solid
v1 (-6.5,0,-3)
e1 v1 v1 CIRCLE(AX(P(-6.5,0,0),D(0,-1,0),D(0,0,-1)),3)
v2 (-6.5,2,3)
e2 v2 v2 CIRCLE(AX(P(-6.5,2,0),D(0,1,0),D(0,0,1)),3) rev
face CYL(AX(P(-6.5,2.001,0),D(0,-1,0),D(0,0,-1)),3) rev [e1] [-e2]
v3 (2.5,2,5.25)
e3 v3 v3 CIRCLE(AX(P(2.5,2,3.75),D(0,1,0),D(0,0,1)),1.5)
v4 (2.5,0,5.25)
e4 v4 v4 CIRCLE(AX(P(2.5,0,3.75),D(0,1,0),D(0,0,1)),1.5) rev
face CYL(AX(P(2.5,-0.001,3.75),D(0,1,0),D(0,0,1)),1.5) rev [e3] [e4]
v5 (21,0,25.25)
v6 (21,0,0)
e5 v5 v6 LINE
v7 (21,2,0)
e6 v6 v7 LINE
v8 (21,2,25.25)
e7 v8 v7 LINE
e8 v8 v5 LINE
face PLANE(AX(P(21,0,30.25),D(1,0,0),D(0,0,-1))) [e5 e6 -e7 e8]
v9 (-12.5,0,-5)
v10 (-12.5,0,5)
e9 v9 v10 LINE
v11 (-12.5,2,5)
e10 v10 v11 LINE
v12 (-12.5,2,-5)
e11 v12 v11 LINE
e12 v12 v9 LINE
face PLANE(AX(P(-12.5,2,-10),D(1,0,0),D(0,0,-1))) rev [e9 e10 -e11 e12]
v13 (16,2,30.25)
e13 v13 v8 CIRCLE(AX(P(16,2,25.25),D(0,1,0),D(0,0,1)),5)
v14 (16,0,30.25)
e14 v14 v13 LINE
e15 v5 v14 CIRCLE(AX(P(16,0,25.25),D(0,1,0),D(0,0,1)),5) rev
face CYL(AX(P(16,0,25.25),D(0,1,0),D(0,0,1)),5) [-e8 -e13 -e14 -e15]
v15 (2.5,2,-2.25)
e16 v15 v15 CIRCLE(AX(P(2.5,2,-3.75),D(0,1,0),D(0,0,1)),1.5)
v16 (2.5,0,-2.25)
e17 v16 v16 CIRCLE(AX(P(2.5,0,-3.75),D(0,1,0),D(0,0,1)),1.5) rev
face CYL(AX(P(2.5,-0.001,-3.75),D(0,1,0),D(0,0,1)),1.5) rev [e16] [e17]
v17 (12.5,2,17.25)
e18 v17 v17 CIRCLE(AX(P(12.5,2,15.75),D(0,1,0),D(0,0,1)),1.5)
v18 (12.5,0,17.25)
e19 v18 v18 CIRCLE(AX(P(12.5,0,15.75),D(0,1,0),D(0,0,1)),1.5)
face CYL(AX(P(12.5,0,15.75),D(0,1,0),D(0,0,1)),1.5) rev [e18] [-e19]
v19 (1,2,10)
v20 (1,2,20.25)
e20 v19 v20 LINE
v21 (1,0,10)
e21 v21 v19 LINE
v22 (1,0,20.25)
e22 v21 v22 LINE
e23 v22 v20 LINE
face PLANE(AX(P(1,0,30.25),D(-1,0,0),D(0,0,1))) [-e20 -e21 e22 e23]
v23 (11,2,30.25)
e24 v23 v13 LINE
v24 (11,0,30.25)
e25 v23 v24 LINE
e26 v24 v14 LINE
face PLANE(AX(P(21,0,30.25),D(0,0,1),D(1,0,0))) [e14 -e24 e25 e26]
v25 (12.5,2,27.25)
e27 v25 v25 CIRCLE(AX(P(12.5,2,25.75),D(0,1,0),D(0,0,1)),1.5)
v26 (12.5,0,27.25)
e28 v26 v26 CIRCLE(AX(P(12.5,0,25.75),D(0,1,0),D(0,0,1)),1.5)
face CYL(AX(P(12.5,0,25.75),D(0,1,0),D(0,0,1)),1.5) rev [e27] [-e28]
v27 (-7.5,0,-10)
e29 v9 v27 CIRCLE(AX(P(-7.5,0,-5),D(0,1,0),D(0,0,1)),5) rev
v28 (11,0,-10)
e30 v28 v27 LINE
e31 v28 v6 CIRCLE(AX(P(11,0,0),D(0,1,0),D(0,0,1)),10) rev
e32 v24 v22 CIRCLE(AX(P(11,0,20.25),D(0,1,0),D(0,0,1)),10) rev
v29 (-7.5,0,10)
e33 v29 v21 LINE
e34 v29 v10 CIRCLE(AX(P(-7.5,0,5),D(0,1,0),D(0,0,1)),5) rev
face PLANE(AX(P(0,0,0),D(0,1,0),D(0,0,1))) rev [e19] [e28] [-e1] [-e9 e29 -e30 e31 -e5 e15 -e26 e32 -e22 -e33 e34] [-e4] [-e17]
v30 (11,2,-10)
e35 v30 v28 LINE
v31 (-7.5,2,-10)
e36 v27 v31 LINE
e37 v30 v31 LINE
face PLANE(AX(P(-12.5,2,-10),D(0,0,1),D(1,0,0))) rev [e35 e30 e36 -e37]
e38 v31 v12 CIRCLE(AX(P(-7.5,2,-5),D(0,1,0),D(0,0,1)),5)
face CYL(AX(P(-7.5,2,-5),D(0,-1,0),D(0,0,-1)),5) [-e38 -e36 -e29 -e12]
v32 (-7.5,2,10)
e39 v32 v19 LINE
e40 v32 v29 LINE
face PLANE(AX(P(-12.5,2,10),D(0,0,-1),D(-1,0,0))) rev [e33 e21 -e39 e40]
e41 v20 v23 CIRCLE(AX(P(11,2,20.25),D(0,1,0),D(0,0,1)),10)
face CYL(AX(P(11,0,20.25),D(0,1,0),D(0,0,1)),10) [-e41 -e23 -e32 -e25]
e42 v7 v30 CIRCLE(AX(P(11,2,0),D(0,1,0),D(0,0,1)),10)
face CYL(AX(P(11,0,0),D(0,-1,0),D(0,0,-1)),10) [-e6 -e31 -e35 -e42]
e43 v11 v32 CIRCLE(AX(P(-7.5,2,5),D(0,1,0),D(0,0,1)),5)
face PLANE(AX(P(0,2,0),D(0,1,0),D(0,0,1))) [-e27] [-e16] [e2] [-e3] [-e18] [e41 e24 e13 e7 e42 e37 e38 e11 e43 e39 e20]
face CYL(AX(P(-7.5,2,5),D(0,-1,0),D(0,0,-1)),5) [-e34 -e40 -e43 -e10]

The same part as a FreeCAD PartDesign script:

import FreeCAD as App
import Part
import Sketcher
Q = App.Units.Quantity


def edges_at(feature, points):
    """Names of the edges that pass closest to the given points."""
    edges = feature.Shape.Edges
    near = lambda p: min(range(len(edges)), key=lambda i: edges[i].distToShape(Part.Vertex(*p))[0])
    return sorted({f"Edge{near(p) + 1}" for p in points})

doc = App.newDocument("Part")
body = doc.addObject("PartDesign::Body", "Body")

# Sketch on XZ plane
sketch1 = doc.addObject("Sketcher::SketchObject", "Sketch")
body.addObject(sketch1)
sketch1.AttachmentSupport = (doc.XZ_Plane, [""])
sketch1.MapMode = "FlatFace"
sketch1.addGeometry(Part.LineSegment(App.Vector(-12, -10, 0), App.Vector(-12, 10, 0)), False)
sketch1.addGeometry(Part.LineSegment(App.Vector(-12, 10, 0), App.Vector(12, 10, 0)), False)
sketch1.addGeometry(Part.LineSegment(App.Vector(12, 10, 0), App.Vector(12, -10, 0)), False)
sketch1.addGeometry(Part.LineSegment(App.Vector(12, -10, 0), App.Vector(-12, -10, 0)), False)
sketch1.addConstraint(Sketcher.Constraint("Coincident", 0, 2, 1, 1))
sketch1.addConstraint(Sketcher.Constraint("Coincident", 1, 2, 2, 1))
sketch1.addConstraint(Sketcher.Constraint("Coincident", 2, 2, 3, 1))
sketch1.addConstraint(Sketcher.Constraint("Coincident", 3, 2, 0, 1))
sketch1.addConstraint(Sketcher.Constraint("Vertical", 0))
sketch1.addConstraint(Sketcher.Constraint("Horizontal", 1))
sketch1.addConstraint(Sketcher.Constraint("Vertical", 2))
sketch1.addConstraint(Sketcher.Constraint("Horizontal", 3))
sketch1.addConstraint(Sketcher.Constraint("Symmetric", 0, 2, 2, 2, -1, 1))
sketch1.addConstraint(Sketcher.Constraint("DistanceX", 1, 1, 1, 2, Q("25 mm")))
sketch1.addConstraint(Sketcher.Constraint("DistanceY", 0, 1, 0, 2, Q("20 mm")))
pad1 = doc.addObject("PartDesign::Pad", "Pad")
body.addObject(pad1)
pad1.Profile = sketch1
pad1.Length = 2
pad1.Reversed = True

# Sketch on XZ plane
sketch2 = doc.addObject("Sketcher::SketchObject", "Sketch001")
body.addObject(sketch2)
sketch2.AttachmentSupport = (doc.XZ_Plane, [""])
sketch2.MapMode = "FlatFace"
sketch2.AttachmentOffset = App.Placement(App.Vector(0, 0, -2), App.Rotation())
sketch2.addGeometry(Part.Circle(App.Vector(-6.5, 0, 0), App.Vector(0, 0, 1), 1.5), False)
sketch2.addConstraint(Sketcher.Constraint("PointOnObject", 0, 3, -1))
sketch2.addConstraint(Sketcher.Constraint("Diameter", 0, Q("3 mm")))
sketch2.addConstraint(Sketcher.Constraint("DistanceX", 0, 3, -1, 1, Q("6.5 mm")))
pocket1 = doc.addObject("PartDesign::Pocket", "Pocket")
body.addObject(pocket1)
pocket1.Profile = sketch2
pocket1.Type = "UpToFirst"
pocket1.Reversed = True

# Sketch on XZ plane
sketch3 = doc.addObject("Sketcher::SketchObject", "Sketch002")
body.addObject(sketch3)
sketch3.AttachmentSupport = (doc.XZ_Plane, [""])
sketch3.MapMode = "FlatFace"
sketch3.AttachmentOffset = App.Placement(App.Vector(0, 0, -2), App.Rotation())
sketch3.addGeometry(Part.Circle(App.Vector(2.5, -3.8, 0), App.Vector(0, 0, 1), 1.5), False)
sketch3.addConstraint(Sketcher.Constraint("Diameter", 0, Q("3 mm")))
sketch3.addConstraint(Sketcher.Constraint("DistanceX", -1, 1, 0, 3, Q("2.5 mm")))
sketch3.addConstraint(Sketcher.Constraint("DistanceY", 0, 3, -1, 1, Q("3.75 mm")))
pocket2 = doc.addObject("PartDesign::Pocket", "Pocket001")
body.addObject(pocket2)
pocket2.Profile = sketch3
pocket2.Type = "UpToFirst"
pocket2.Reversed = True

# Sketch on XZ plane
sketch4 = doc.addObject("Sketcher::SketchObject", "Sketch003")
body.addObject(sketch4)
sketch4.AttachmentSupport = (doc.XZ_Plane, [""])
sketch4.MapMode = "FlatFace"
sketch4.AttachmentOffset = App.Placement(App.Vector(0, 0, -2), App.Rotation())
sketch4.addGeometry(Part.Circle(App.Vector(2.5, 3.8, 0), App.Vector(0, 0, 1), 1.5), False)
sketch4.addConstraint(Sketcher.Constraint("Diameter", 0, Q("3 mm")))
sketch4.addConstraint(Sketcher.Constraint("DistanceX", -1, 1, 0, 3, Q("2.5 mm")))
sketch4.addConstraint(Sketcher.Constraint("DistanceY", -1, 1, 0, 3, Q("3.75 mm")))
pocket3 = doc.addObject("PartDesign::Pocket", "Pocket002")
body.addObject(pocket3)
pocket3.Profile = sketch4
pocket3.Type = "UpToFirst"
pocket3.Reversed = True

# Sketch on XZ plane
sketch5 = doc.addObject("Sketcher::SketchObject", "Sketch004")
body.addObject(sketch5)
sketch5.AttachmentSupport = (doc.XZ_Plane, [""])
sketch5.MapMode = "FlatFace"
sketch5.addGeometry(Part.Circle(App.Vector(-6.5, 0, 0), App.Vector(0, 0, 1), 3), False)
sketch5.addConstraint(Sketcher.Constraint("PointOnObject", 0, 3, -1))
sketch5.addConstraint(Sketcher.Constraint("Diameter", 0, Q("6 mm")))
sketch5.addConstraint(Sketcher.Constraint("DistanceX", 0, 3, -1, 1, Q("6.5 mm")))
pocket4 = doc.addObject("PartDesign::Pocket", "Pocket003")
body.addObject(pocket4)
pocket4.Profile = sketch5
pocket4.Length = 2

# Sketch on XZ plane
sketch6 = doc.addObject("Sketcher::SketchObject", "Sketch005")
body.addObject(sketch6)
sketch6.AttachmentSupport = (doc.XZ_Plane, [""])
sketch6.MapMode = "FlatFace"
sketch6.AttachmentOffset = App.Placement(App.Vector(0, 0, -2), App.Rotation())
sketch6.addGeometry(Part.LineSegment(App.Vector(1, 5, 0), App.Vector(1, 30, 0)), False)
sketch6.addGeometry(Part.LineSegment(App.Vector(1, 30, 0), App.Vector(21, 30, 0)), False)
sketch6.addGeometry(Part.LineSegment(App.Vector(21, 30, 0), App.Vector(21, 5, 0)), False)
sketch6.addGeometry(Part.LineSegment(App.Vector(21, 5, 0), App.Vector(1, 5, 0)), False)
sketch6.addConstraint(Sketcher.Constraint("Coincident", 0, 2, 1, 1))
sketch6.addConstraint(Sketcher.Constraint("Coincident", 1, 2, 2, 1))
sketch6.addConstraint(Sketcher.Constraint("Coincident", 2, 2, 3, 1))
sketch6.addConstraint(Sketcher.Constraint("Coincident", 3, 2, 0, 1))
sketch6.addConstraint(Sketcher.Constraint("Vertical", 0))
sketch6.addConstraint(Sketcher.Constraint("Horizontal", 1))
sketch6.addConstraint(Sketcher.Constraint("Vertical", 2))
sketch6.addConstraint(Sketcher.Constraint("Horizontal", 3))
sketch6.addConstraint(Sketcher.Constraint("DistanceX", 1, 1, 1, 2, Q("20 mm")))
sketch6.addConstraint(Sketcher.Constraint("DistanceY", 0, 1, 0, 2, Q("25 mm")))
sketch6.addConstraint(Sketcher.Constraint("DistanceX", -1, 1, 0, 2, Q("1 mm")))
sketch6.addConstraint(Sketcher.Constraint("DistanceY", -1, 1, 0, 2, Q("30.25 mm")))
pad2 = doc.addObject("PartDesign::Pad", "Pad001")
body.addObject(pad2)
pad2.Profile = sketch6
pad2.Length = 2

# Sketch on XZ plane
sketch7 = doc.addObject("Sketcher::SketchObject", "Sketch006")
body.addObject(sketch7)
sketch7.AttachmentSupport = (doc.XZ_Plane, [""])
sketch7.MapMode = "FlatFace"
sketch7.AttachmentOffset = App.Placement(App.Vector(0, 0, -2), App.Rotation())
sketch7.addGeometry(Part.LineSegment(App.Vector(12, -10, 0), App.Vector(12, 5, 0)), False)
sketch7.addGeometry(Part.LineSegment(App.Vector(12, 5, 0), App.Vector(21, 5, 0)), False)
sketch7.addGeometry(Part.LineSegment(App.Vector(21, 5, 0), App.Vector(12, -10, 0)), False)
sketch7.addConstraint(Sketcher.Constraint("Coincident", 0, 2, 1, 1))
sketch7.addConstraint(Sketcher.Constraint("Coincident", 1, 2, 2, 1))
sketch7.addConstraint(Sketcher.Constraint("Coincident", 2, 2, 0, 1))
sketch7.addConstraint(Sketcher.Constraint("Vertical", 0))
sketch7.addConstraint(Sketcher.Constraint("Horizontal", 1))
sketch7.addConstraint(Sketcher.Constraint("DistanceX", 1, 1, 1, 2, Q("8.5 mm")))
sketch7.addConstraint(Sketcher.Constraint("DistanceX", -1, 1, 1, 2, Q("21 mm")))
sketch7.addConstraint(Sketcher.Constraint("DistanceY", 2, 2, -1, 1, Q("10 mm")))
sketch7.addConstraint(Sketcher.Constraint("DistanceY", 0, 1, 0, 2, Q("15.25 mm")))
pad3 = doc.addObject("PartDesign::Pad", "Pad002")
body.addObject(pad3)
pad3.Profile = sketch7
pad3.Length = 2

# Sketch on XZ plane
sketch8 = doc.addObject("Sketcher::SketchObject", "Sketch007")
body.addObject(sketch8)
sketch8.AttachmentSupport = (doc.XZ_Plane, [""])
sketch8.MapMode = "FlatFace"
sketch8.AttachmentOffset = App.Placement(App.Vector(0, 0, -2), App.Rotation())
sketch8.addGeometry(Part.Circle(App.Vector(12.5, 15.8, 0), App.Vector(0, 0, 1), 1.5), False)
sketch8.addGeometry(Part.Circle(App.Vector(12.5, 25.8, 0), App.Vector(0, 0, 1), 1.5), False)
sketch8.addConstraint(Sketcher.Constraint("Equal", 0, 1))
sketch8.addConstraint(Sketcher.Constraint("Vertical", 0, 3, 1, 3))
sketch8.addConstraint(Sketcher.Constraint("Diameter", 0, Q("3 mm")))
sketch8.addConstraint(Sketcher.Constraint("DistanceY", 0, 3, 1, 3, Q("10 mm")))
sketch8.addConstraint(Sketcher.Constraint("DistanceX", -1, 1, 0, 3, Q("12.5 mm")))
sketch8.addConstraint(Sketcher.Constraint("DistanceY", -1, 1, 0, 3, Q("15.75 mm")))
pocket5 = doc.addObject("PartDesign::Pocket", "Pocket004")
body.addObject(pocket5)
pocket5.Profile = sketch8
pocket5.Length = 2
pocket5.Reversed = True

# Sketch on XZ plane
sketch9 = doc.addObject("Sketcher::SketchObject", "Sketch008")
body.addObject(sketch9)
sketch9.AttachmentSupport = (doc.XZ_Plane, [""])
sketch9.MapMode = "FlatFace"
sketch9.AttachmentOffset = App.Placement(App.Vector(0, 0, -2), App.Rotation())
sketch9.addGeometry(Part.LineSegment(App.Vector(12, -10, 0), App.Vector(12, 5, 0)), False)
sketch9.addGeometry(Part.LineSegment(App.Vector(12, 5, 0), App.Vector(21, 5, 0)), False)
sketch9.addGeometry(Part.LineSegment(App.Vector(21, 5, 0), App.Vector(21, -10, 0)), False)
sketch9.addGeometry(Part.LineSegment(App.Vector(21, -10, 0), App.Vector(12, -10, 0)), False)
sketch9.addConstraint(Sketcher.Constraint("Coincident", 0, 2, 1, 1))
sketch9.addConstraint(Sketcher.Constraint("Coincident", 1, 2, 2, 1))
sketch9.addConstraint(Sketcher.Constraint("Coincident", 2, 2, 3, 1))
sketch9.addConstraint(Sketcher.Constraint("Coincident", 3, 2, 0, 1))
sketch9.addConstraint(Sketcher.Constraint("Vertical", 0))
sketch9.addConstraint(Sketcher.Constraint("Horizontal", 1))
sketch9.addConstraint(Sketcher.Constraint("Vertical", 2))
sketch9.addConstraint(Sketcher.Constraint("Horizontal", 3))
sketch9.addConstraint(Sketcher.Constraint("DistanceX", 1, 1, 1, 2, Q("8.5 mm")))
sketch9.addConstraint(Sketcher.Constraint("DistanceX", -1, 1, 1, 2, Q("21 mm")))
sketch9.addConstraint(Sketcher.Constraint("DistanceY", 2, 2, -1, 1, Q("10 mm")))
sketch9.addConstraint(Sketcher.Constraint("DistanceY", 0, 1, 0, 2, Q("15.25 mm")))
pad4 = doc.addObject("PartDesign::Pad", "Pad003")
body.addObject(pad4)
pad4.Profile = sketch9
pad4.Length = 2
doc.recompute()

fillet = doc.addObject("PartDesign::Fillet", "Fillet")
body.addObject(fillet)
fillet.Base = (pad4, edges_at(pad4, [(1, 1, 30.25), (21, 1, -10)]))
fillet.Radius = 10
doc.recompute()

fillet2 = doc.addObject("PartDesign::Fillet", "Fillet001")
body.addObject(fillet2)
fillet2.Base = (fillet, edges_at(fillet, [(21, 1, 30.25), (-12.5, 1, 10), (-12.5, 1, -10)]))
fillet2.Radius = 5

doc.recompute()
